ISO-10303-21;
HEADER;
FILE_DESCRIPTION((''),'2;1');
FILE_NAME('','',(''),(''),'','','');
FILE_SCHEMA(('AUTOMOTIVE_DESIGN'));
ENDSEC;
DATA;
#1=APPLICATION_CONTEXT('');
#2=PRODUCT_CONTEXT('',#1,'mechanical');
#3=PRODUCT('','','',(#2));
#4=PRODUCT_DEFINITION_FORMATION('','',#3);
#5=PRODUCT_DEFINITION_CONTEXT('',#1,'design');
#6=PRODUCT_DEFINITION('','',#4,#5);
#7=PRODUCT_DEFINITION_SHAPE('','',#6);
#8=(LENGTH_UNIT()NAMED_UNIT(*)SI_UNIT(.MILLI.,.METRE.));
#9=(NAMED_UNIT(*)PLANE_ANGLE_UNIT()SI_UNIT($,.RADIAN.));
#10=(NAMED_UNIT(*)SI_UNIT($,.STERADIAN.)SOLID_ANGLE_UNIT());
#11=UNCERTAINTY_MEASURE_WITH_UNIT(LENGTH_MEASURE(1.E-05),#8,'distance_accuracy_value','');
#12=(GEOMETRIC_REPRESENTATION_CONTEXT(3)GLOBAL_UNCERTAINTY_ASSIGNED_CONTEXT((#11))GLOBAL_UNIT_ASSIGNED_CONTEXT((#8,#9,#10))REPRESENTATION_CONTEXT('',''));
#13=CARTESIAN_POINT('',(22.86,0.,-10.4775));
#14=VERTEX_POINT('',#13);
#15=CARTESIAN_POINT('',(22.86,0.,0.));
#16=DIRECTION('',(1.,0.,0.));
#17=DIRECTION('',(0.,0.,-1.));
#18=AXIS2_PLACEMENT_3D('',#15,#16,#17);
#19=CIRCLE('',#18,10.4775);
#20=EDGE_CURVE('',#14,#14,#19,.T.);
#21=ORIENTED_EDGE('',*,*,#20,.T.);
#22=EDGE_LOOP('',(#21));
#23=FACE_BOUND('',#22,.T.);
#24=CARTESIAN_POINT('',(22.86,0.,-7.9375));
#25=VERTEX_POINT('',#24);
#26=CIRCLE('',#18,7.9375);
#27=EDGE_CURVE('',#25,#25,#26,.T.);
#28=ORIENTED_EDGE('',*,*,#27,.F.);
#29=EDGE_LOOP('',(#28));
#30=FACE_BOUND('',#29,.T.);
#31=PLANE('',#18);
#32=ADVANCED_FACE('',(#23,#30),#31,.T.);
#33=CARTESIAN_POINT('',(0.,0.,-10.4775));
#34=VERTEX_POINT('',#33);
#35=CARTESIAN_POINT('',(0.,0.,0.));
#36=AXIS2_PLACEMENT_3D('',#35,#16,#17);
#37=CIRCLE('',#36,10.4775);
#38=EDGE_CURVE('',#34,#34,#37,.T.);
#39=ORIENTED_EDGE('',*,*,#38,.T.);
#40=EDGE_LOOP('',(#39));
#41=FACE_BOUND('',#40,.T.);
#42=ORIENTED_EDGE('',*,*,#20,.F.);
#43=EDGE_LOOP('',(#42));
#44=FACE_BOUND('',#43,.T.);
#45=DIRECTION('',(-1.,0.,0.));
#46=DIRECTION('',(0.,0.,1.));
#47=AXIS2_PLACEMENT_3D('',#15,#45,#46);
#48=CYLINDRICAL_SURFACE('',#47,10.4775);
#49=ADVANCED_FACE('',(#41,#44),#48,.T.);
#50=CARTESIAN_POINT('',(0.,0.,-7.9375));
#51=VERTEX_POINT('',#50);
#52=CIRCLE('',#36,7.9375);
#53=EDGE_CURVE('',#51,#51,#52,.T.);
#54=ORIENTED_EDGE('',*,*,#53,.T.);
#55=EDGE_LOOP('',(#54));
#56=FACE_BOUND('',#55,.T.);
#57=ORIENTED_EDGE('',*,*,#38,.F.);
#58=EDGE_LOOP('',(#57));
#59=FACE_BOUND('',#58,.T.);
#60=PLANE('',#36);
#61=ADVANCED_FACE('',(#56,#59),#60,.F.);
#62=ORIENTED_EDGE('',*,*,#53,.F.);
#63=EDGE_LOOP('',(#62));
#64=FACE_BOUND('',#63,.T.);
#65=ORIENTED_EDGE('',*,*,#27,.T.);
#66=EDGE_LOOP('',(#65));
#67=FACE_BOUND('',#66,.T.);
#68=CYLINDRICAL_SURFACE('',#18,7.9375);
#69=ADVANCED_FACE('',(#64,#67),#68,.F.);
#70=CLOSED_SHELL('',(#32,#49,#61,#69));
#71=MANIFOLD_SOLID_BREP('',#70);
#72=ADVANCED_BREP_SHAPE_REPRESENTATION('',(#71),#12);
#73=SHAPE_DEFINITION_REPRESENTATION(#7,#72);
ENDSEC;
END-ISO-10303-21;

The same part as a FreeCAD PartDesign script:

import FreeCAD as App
import Part
import Sketcher

V = App.Vector
Q = App.Units.Quantity

doc = App.newDocument("Part")
params = doc.addObject("Spreadsheet::Sheet", "Params")
for row, (alias, value) in enumerate([
    ("sketch1_diameter", "0.825 in"),
    ("pad1_length", "0.9 in"),
    ("sketch2_diameter", "0.625 in"),
    ("hole_diameter", "0.625 in"),
], start=1):
    params.set(f"A{row}", alias)
    params.set(f"B{row}", "=" + value)
    params.setAlias(f"B{row}", alias)

body = doc.addObject("PartDesign::Body", "Body")

# Sketch on YZ plane
sketch1 = body.newObject("Sketcher::SketchObject", "Sketch")
sketch1.AttachmentSupport = (doc.getObject("YZ_Plane"), [""])
sketch1.MapMode = "FlatFace"
sketch1.addGeometry(Part.Circle(V(0, 0, 0), V(0, 0, 1), 10), False)
sketch1.addConstraint(Sketcher.Constraint("Coincident", 0, 3, -1, 1))
sketch1.addConstraint(Sketcher.Constraint("Diameter", 0, Q("0.825 in")))
sketch1.setExpression("Constraints[1]", "Params.sketch1_diameter")
pad1 = body.newObject("PartDesign::Pad", "Pad")
pad1.Profile = sketch1
pad1.setExpression("Length", "Params.pad1_length")

# Sketch on YZ plane
sketch2 = body.newObject("Sketcher::SketchObject", "Sketch001")
sketch2.AttachmentSupport = (doc.getObject("YZ_Plane"), [""])
sketch2.MapMode = "FlatFace"
sketch2.AttachmentOffset = App.Placement(V(0, 0, 0.9 * 25.4), App.Rotation())
sketch2.addGeometry(Part.Circle(V(0, 0, 0), V(0, 0, 1), 8), False)
sketch2.addConstraint(Sketcher.Constraint("Coincident", 0, 3, -1, 1))
sketch2.addConstraint(Sketcher.Constraint("Diameter", 0, Q("0.625 in")))
sketch2.setExpression("Constraints[1]", "Params.sketch2_diameter")
doc.recompute()
hole = body.newObject("PartDesign::Hole", "Hole")
hole.Profile = sketch2
hole.ThreadType = "None"
hole.setExpression("Diameter", "Params.hole_diameter")
hole.DepthType = "ThroughAll"

doc.recompute()
